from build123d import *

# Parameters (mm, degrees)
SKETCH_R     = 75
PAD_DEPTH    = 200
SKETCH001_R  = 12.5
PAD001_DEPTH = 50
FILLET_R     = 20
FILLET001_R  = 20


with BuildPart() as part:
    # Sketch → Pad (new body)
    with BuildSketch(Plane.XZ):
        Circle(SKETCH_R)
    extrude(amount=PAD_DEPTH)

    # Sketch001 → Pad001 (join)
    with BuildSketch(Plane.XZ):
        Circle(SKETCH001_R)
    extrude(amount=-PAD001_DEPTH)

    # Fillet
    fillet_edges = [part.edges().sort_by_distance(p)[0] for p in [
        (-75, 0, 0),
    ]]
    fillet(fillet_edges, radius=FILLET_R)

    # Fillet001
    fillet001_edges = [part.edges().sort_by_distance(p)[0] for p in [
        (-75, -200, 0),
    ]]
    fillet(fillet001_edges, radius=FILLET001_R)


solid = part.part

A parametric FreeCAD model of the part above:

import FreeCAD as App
import Part
import Sketcher
Q = App.Units.Quantity


def edges_at(feature, points):
    """Names of the edges that pass closest to the given points."""
    edges = feature.Shape.Edges
    near = lambda p: min(range(len(edges)), key=lambda i: edges[i].distToShape(Part.Vertex(*p))[0])
    return sorted({f"Edge{near(p) + 1}" for p in points})

doc = App.newDocument("Part")
body = doc.addObject("PartDesign::Body", "Body")

# Sketch on XZ plane
sketch1 = body.newObject("Sketcher::SketchObject", "Sketch")
sketch1.AttachmentSupport = (doc.getObject("XZ_Plane"), [""])
sketch1.MapMode = "FlatFace"
sketch1.addGeometry(Part.Circle(App.Vector(0, 0, 0), App.Vector(0, 0, 1), 75), False)
sketch1.addConstraint(Sketcher.Constraint("Coincident", 0, 3, -1, 1))
sketch1.addConstraint(Sketcher.Constraint("Diameter", 0, Q("150 mm")))
pad1 = body.newObject("PartDesign::Pad", "Pad")
pad1.Profile = sketch1
pad1.Length = 200

# Sketch on XZ plane
sketch2 = body.newObject("Sketcher::SketchObject", "Sketch001")
sketch2.AttachmentSupport = (doc.getObject("XZ_Plane"), [""])
sketch2.MapMode = "FlatFace"
sketch2.addGeometry(Part.Circle(App.Vector(0, 0, 0), App.Vector(0, 0, 1), 12), False)
sketch2.addConstraint(Sketcher.Constraint("Coincident", 0, 3, -1, 1))
sketch2.addConstraint(Sketcher.Constraint("Diameter", 0, Q("25 mm")))
pad2 = body.newObject("PartDesign::Pad", "Pad001")
pad2.Profile = sketch2
pad2.Length = 50
pad2.Reversed = True
doc.recompute()

fillet = body.newObject("PartDesign::Fillet", "Fillet")
fillet.Base = (pad2, edges_at(pad2, [(-75, 0, 0)]))
fillet.Radius = 20
doc.recompute()

fillet2 = body.newObject("PartDesign::Fillet", "Fillet001")
fillet2.Base = (fillet, edges_at(fillet, [(-75, -200, 0)]))
fillet2.Radius = 20

doc.recompute()
